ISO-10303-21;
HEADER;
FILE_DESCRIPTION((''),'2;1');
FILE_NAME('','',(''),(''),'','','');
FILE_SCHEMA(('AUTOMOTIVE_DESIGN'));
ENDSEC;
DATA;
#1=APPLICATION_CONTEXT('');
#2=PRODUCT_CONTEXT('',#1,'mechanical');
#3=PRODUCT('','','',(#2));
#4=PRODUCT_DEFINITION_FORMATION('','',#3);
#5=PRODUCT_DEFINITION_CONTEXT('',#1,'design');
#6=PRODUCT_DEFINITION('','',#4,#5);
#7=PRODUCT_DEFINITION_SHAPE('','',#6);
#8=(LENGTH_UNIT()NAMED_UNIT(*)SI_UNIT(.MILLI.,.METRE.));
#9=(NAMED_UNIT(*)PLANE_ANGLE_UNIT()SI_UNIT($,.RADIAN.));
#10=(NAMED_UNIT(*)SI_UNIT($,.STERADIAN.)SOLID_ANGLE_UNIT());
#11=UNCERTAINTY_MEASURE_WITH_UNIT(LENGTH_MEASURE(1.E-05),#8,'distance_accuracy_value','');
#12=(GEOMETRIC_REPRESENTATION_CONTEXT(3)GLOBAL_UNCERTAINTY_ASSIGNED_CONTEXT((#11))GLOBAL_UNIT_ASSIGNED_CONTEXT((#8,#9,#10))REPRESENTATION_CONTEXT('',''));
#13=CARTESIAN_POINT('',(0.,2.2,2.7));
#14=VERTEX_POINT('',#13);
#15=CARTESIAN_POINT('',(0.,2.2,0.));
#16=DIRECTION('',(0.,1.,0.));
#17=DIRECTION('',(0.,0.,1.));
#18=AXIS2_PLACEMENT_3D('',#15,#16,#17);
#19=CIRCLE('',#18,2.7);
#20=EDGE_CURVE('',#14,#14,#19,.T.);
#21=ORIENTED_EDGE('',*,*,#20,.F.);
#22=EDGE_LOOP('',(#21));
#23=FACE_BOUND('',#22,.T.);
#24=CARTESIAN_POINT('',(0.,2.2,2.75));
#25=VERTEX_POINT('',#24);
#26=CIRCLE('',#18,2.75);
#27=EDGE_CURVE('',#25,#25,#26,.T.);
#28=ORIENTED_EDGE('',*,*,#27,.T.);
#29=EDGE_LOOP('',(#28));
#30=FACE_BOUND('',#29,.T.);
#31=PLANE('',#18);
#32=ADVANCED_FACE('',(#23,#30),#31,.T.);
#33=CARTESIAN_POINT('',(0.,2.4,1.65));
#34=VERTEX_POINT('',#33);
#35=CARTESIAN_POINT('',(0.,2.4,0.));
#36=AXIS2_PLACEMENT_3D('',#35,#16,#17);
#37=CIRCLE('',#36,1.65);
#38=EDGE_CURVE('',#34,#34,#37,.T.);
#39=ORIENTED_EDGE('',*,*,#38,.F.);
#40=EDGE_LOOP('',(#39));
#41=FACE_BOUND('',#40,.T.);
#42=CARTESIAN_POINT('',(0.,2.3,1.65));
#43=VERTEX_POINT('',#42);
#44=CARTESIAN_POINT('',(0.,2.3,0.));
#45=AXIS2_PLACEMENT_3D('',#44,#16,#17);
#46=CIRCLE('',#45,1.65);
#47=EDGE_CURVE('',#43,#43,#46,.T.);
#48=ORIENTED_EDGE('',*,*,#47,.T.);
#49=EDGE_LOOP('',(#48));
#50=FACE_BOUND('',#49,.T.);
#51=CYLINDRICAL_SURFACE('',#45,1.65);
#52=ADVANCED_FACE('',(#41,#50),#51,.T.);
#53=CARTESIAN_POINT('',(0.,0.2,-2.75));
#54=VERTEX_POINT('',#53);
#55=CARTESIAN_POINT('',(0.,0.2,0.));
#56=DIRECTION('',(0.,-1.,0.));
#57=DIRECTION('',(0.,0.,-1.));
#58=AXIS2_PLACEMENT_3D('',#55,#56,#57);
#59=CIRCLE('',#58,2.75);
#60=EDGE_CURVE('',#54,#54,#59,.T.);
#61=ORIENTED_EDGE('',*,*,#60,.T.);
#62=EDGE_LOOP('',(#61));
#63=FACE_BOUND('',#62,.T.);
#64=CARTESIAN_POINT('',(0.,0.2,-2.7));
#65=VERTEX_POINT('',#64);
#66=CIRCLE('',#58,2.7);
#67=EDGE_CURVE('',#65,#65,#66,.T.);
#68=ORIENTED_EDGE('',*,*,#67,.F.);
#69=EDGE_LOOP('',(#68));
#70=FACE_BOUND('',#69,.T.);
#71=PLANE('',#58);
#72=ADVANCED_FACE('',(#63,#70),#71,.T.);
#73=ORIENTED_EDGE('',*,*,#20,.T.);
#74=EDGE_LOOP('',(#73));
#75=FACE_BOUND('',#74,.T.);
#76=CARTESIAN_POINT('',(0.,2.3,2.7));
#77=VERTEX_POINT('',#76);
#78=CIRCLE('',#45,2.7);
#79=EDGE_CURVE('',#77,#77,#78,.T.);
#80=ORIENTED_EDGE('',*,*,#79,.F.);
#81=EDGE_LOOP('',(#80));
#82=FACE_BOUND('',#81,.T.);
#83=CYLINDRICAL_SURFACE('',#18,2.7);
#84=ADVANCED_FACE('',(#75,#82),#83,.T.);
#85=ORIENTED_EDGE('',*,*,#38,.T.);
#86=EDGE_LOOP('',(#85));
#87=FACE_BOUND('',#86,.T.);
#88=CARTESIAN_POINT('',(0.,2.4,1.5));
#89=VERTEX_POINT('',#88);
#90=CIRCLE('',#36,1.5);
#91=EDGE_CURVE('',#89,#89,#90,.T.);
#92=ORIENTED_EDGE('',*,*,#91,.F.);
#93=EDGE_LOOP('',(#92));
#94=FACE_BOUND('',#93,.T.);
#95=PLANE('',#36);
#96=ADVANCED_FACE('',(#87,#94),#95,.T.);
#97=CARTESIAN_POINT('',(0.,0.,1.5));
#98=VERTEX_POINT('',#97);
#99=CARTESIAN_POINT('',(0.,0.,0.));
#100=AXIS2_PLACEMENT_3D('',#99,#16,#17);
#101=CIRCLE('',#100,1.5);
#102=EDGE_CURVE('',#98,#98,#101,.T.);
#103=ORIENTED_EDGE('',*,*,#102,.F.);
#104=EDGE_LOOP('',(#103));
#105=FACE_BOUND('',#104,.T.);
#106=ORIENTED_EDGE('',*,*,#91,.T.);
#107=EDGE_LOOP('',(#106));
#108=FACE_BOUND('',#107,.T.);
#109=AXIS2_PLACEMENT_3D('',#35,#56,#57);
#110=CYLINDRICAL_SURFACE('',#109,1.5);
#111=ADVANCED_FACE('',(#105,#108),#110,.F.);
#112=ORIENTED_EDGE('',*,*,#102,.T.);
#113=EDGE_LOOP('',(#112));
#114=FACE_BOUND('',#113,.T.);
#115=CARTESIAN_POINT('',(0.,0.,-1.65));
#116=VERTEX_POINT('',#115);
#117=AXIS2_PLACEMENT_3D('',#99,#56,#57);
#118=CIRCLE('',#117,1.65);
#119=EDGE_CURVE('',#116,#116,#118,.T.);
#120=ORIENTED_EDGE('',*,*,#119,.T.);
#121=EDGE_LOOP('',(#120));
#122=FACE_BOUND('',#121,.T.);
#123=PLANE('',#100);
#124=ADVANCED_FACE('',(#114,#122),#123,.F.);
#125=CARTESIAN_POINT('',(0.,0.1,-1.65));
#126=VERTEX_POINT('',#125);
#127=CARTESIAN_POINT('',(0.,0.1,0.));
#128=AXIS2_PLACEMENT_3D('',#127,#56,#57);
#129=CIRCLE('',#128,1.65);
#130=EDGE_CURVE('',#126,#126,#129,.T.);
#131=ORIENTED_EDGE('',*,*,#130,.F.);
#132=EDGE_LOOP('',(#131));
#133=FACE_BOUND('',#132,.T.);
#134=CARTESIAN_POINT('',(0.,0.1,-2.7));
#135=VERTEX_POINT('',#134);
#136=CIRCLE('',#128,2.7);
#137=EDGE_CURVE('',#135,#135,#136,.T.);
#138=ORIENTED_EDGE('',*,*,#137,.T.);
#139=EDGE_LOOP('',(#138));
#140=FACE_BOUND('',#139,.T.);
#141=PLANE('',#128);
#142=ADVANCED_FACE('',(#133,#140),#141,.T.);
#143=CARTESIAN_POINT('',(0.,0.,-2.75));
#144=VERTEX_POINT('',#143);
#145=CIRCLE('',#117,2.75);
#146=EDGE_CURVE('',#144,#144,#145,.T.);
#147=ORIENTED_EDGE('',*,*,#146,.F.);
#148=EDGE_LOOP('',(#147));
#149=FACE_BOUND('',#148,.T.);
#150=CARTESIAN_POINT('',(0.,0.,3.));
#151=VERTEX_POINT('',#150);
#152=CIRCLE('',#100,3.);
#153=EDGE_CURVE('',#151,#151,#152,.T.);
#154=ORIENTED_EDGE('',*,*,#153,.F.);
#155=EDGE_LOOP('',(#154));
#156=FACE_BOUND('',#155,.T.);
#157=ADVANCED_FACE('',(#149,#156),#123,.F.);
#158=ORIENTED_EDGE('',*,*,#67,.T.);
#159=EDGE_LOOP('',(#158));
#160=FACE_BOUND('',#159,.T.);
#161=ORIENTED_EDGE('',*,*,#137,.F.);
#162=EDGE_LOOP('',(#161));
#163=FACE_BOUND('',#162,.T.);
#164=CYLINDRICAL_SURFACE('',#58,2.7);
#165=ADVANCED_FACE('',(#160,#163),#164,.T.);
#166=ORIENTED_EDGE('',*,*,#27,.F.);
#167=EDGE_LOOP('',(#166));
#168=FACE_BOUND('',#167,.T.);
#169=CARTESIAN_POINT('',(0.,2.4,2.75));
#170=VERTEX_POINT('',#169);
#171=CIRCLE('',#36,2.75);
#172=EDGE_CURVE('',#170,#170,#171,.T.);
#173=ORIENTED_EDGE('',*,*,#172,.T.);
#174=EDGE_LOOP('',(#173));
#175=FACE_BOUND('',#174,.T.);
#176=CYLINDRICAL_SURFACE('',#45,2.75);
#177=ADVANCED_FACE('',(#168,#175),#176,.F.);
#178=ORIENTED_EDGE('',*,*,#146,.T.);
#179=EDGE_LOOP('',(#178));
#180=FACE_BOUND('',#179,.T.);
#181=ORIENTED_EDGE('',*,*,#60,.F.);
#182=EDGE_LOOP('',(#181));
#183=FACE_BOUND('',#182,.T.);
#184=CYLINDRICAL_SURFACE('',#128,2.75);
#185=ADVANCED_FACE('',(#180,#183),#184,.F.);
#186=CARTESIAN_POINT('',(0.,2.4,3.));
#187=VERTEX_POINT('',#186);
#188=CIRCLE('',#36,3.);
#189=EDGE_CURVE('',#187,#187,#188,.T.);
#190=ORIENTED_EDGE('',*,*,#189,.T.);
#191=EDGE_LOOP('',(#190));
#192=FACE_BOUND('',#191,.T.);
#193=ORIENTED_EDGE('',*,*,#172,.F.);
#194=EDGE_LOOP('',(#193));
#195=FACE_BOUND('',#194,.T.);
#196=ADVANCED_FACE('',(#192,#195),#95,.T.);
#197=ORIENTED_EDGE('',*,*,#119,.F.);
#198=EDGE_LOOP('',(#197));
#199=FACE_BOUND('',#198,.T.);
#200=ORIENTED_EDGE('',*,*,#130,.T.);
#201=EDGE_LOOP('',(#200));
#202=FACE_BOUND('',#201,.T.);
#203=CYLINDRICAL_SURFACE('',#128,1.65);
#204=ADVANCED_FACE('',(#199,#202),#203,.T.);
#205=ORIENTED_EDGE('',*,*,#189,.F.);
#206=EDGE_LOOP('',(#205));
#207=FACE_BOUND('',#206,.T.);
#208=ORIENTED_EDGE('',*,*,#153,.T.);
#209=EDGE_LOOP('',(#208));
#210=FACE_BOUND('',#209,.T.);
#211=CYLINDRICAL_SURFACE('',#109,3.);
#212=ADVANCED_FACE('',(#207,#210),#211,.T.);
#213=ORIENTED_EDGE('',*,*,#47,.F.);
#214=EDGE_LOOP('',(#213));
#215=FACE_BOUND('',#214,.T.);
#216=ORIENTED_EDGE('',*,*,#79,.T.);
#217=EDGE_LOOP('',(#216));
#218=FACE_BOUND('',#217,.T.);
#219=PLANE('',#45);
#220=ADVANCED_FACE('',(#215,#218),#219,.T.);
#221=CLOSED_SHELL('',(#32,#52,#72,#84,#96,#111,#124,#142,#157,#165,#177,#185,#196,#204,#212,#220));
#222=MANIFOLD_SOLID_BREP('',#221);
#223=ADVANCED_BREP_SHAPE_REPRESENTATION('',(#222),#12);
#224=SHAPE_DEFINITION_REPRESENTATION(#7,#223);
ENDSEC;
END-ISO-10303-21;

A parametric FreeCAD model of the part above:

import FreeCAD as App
import Part
import Sketcher
from FreeCAD import Vector

doc = App.newDocument("Part")
body = doc.addObject("PartDesign::Body", "Body")

sketch1 = body.newObject("Sketcher::SketchObject", "Sketch")
sketch1.AttachmentSupport = (doc.getObject("XZ_Plane"), [""])
sketch1.MapMode = "FlatFace"
sketch1.addGeometry([
    Part.Circle(Vector(0, 0, 0), Vector(0, 0, 1), 3),
    Part.Circle(Vector(0, 0, 0), Vector(0, 0, 1), 1.5),
], False)
sketch1.addConstraint([
    Sketcher.Constraint("Coincident", 0, 3, -1, 1),
    Sketcher.Constraint("Coincident", 1, 3, -1, 1),
    Sketcher.Constraint("Diameter", 0, 6.0),
    Sketcher.Constraint("Diameter", 1, 3.0),
])
pad1 = body.newObject("PartDesign::Pad", "Pad")
pad1.Profile = sketch1
pad1.Length = 2.4
pad1.Reversed = True

sketch2 = body.newObject("Sketcher::SketchObject", "Sketch001")
sketch2.AttachmentSupport = (doc.getObject("XZ_Plane"), [""])
sketch2.MapMode = "FlatFace"
sketch2.AttachmentOffset = App.Placement(Vector(0, 0, -2.4), App.Rotation())
sketch2.addGeometry([
    Part.Circle(Vector(0, 0, 0), Vector(0, 0, 1), 2.8),
    Part.Circle(Vector(0, 0, 0), Vector(0, 0, 1), 1.6),
], False)
sketch2.addConstraint([
    Sketcher.Constraint("Coincident", 0, 3, -1, 1),
    Sketcher.Constraint("Coincident", 1, 3, -1, 1),
    Sketcher.Constraint("Diameter", 0, 5.5),
    Sketcher.Constraint("Diameter", 1, 3.3),
])
pocket1 = body.newObject("PartDesign::Pocket", "Pocket")
pocket1.Profile = sketch2
pocket1.Length = 0.1
pocket1.Reversed = True

sketch3 = body.newObject("Sketcher::SketchObject", "Sketch002")
sketch3.AttachmentSupport = (doc.getObject("XZ_Plane"), [""])
sketch3.MapMode = "FlatFace"
sketch3.AttachmentOffset = App.Placement(Vector(0, 0, -0.1), App.Rotation())
sketch3.addGeometry([
    Part.Circle(Vector(0, 0, 0), Vector(0, 0, 1), 2.8),
    Part.Circle(Vector(0, 0, 0), Vector(0, 0, 1), 1.6),
], False)
sketch3.addConstraint([
    Sketcher.Constraint("Coincident", 0, 3, -1, 1),
    Sketcher.Constraint("Coincident", 1, 3, -1, 1),
    Sketcher.Constraint("Diameter", 0, 5.5),
    Sketcher.Constraint("Diameter", 1, 3.3),
])
pocket2 = body.newObject("PartDesign::Pocket", "Pocket001")
pocket2.Profile = sketch3
pocket2.Length = 0.1
pocket2.Reversed = True

sketch4 = body.newObject("Sketcher::SketchObject", "Sketch003")
sketch4.AttachmentSupport = (doc.getObject("XZ_Plane"), [""])
sketch4.MapMode = "FlatFace"
sketch4.AttachmentOffset = App.Placement(Vector(0, 0, -0.2), App.Rotation())
sketch4.addGeometry([
    Part.Circle(Vector(0, 0, 0), Vector(0, 0, 1), 2.8),
    Part.Circle(Vector(0, 0, 0), Vector(0, 0, 1), 2.7),
], False)
sketch4.addConstraint([
    Sketcher.Constraint("Coincident", 0, 3, -1, 1),
    Sketcher.Constraint("Coincident", 1, 3, -1, 1),
    Sketcher.Constraint("Diameter", 0, 5.5),
    Sketcher.Constraint("Diameter", 1, 5.4),
])
pocket3 = body.newObject("PartDesign::Pocket", "Pocket002")
pocket3.Profile = sketch4
pocket3.Length = 0.1
pocket3.Reversed = True

sketch5 = body.newObject("Sketcher::SketchObject", "Sketch004")
sketch5.AttachmentSupport = (doc.getObject("XZ_Plane"), [""])
sketch5.MapMode = "FlatFace"
sketch5.AttachmentOffset = App.Placement(Vector(0, 0, -2.3), App.Rotation())
sketch5.addGeometry([
    Part.Circle(Vector(0, 0, 0), Vector(0, 0, 1), 2.8),
    Part.Circle(Vector(0, 0, 0), Vector(0, 0, 1), 2.7),
], False)
sketch5.addConstraint([
    Sketcher.Constraint("Coincident", 0, 3, -1, 1),
    Sketcher.Constraint("Coincident", 1, 3, -1, 1),
    Sketcher.Constraint("Diameter", 0, 5.5),
    Sketcher.Constraint("Diameter", 1, 5.4),
])
pocket4 = body.newObject("PartDesign::Pocket", "Pocket003")
pocket4.Profile = sketch5
pocket4.Length = 0.1
pocket4.Reversed = True

doc.recompute()
